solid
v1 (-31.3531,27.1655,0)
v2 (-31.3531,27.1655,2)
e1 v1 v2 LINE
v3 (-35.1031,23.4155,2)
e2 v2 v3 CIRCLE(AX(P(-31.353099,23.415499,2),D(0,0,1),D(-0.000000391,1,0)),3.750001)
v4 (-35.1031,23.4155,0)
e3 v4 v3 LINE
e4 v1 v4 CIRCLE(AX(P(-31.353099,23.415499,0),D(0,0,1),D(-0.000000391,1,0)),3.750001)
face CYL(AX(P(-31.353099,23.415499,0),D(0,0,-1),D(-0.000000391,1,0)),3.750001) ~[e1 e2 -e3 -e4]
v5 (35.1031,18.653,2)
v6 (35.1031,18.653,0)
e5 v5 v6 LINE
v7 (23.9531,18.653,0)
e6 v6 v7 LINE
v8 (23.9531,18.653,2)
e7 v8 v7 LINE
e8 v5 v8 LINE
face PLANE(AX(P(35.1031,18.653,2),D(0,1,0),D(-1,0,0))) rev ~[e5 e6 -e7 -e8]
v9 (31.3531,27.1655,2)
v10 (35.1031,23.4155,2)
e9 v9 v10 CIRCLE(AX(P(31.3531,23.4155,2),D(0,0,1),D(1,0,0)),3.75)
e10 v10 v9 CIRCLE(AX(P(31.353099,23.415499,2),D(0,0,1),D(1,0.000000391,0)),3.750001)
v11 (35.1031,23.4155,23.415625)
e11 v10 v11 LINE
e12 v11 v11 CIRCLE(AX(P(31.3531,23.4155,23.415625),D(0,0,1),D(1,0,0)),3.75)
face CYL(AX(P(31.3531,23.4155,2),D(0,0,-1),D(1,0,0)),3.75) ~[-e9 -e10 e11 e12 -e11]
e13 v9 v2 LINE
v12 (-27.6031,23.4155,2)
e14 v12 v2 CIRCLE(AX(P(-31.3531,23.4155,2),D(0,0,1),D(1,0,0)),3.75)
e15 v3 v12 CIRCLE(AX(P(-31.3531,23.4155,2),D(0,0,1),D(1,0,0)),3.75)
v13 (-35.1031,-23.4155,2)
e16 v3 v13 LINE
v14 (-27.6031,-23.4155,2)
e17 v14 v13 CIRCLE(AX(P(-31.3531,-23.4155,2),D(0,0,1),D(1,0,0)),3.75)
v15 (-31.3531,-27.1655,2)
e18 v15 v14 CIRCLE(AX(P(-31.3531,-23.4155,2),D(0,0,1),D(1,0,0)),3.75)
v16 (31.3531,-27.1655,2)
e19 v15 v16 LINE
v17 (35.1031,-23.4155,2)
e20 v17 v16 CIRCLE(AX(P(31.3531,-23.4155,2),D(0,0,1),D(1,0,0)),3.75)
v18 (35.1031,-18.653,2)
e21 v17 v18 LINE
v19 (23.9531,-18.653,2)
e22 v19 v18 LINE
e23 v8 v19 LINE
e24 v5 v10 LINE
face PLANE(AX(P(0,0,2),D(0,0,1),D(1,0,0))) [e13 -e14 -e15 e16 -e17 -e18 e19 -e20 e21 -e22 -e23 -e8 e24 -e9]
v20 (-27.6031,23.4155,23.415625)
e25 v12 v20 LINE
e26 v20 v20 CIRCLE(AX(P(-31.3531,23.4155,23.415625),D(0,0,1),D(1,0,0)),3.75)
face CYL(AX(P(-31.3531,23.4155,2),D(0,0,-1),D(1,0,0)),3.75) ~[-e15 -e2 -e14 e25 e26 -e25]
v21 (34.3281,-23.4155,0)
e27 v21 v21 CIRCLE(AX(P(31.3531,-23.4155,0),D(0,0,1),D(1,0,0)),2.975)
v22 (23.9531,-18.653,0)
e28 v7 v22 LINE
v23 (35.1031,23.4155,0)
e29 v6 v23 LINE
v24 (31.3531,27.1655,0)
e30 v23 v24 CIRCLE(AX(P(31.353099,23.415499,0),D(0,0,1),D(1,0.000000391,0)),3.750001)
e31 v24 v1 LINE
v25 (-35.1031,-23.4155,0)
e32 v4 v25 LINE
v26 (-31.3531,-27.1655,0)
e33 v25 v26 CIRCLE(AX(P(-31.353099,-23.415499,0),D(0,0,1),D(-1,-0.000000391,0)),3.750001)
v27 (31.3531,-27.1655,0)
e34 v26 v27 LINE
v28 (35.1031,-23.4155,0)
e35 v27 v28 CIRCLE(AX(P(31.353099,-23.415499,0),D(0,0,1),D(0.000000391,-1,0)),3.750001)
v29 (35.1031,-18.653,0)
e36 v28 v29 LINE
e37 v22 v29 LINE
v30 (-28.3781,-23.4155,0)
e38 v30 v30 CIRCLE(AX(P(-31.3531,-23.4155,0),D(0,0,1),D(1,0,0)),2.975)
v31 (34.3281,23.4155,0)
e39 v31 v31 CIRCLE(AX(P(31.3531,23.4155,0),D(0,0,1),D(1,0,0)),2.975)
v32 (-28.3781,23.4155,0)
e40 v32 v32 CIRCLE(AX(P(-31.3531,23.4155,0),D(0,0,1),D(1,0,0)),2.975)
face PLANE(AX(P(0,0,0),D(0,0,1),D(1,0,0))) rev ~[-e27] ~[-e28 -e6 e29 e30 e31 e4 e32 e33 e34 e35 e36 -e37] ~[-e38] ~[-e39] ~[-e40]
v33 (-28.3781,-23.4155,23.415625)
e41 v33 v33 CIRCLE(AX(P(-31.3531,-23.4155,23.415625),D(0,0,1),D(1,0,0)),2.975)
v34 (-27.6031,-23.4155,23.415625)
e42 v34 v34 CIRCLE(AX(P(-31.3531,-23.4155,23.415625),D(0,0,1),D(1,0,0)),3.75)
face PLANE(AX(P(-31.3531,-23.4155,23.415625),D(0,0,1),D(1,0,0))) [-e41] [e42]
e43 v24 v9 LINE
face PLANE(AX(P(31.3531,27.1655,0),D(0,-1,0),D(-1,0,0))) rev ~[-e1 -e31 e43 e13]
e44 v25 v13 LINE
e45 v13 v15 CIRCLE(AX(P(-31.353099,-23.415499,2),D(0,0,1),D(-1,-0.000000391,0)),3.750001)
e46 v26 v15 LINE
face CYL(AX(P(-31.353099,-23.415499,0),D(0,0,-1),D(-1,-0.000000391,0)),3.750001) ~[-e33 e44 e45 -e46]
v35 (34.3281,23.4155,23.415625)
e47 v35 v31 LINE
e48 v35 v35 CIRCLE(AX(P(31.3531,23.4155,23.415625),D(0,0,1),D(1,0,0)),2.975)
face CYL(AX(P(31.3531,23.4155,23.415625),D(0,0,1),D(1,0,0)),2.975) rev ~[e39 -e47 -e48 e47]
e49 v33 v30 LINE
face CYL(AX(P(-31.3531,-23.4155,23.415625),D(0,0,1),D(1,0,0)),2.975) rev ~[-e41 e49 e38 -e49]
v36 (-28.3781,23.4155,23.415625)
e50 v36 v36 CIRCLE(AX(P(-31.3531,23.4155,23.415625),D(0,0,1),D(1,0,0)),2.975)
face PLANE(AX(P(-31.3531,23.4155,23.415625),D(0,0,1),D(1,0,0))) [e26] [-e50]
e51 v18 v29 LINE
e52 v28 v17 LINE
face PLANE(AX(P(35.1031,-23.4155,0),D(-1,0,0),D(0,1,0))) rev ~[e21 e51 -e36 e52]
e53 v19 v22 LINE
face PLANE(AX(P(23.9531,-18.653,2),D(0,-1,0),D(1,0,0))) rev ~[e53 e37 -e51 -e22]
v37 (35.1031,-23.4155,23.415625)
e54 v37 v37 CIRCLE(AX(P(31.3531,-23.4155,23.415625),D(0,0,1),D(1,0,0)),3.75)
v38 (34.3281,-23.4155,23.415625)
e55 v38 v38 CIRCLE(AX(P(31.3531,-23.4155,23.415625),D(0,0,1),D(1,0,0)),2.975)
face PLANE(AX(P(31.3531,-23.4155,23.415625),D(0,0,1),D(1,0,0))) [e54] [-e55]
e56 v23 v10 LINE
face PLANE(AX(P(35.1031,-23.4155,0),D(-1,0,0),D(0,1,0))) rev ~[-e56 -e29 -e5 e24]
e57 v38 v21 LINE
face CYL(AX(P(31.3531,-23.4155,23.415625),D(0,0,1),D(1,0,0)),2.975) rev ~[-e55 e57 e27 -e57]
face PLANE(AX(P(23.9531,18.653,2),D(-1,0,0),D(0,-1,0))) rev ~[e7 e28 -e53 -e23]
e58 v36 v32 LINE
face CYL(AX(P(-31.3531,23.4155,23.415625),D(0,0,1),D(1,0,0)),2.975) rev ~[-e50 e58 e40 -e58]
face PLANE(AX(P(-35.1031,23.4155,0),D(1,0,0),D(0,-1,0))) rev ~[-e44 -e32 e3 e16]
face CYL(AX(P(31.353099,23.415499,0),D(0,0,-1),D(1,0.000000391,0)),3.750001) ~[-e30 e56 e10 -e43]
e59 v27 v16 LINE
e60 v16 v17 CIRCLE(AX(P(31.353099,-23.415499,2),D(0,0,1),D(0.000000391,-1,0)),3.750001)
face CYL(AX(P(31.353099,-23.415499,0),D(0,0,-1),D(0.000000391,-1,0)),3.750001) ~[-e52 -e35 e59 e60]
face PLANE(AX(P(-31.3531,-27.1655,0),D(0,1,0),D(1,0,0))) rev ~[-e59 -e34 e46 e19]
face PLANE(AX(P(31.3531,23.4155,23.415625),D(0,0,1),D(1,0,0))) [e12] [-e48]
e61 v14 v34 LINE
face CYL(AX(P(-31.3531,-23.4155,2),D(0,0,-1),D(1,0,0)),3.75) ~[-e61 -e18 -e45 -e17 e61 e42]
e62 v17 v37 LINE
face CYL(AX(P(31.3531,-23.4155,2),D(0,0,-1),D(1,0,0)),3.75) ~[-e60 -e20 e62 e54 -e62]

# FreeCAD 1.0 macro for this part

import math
import FreeCAD as App
import Part
import Sketcher

V = App.Vector
Q = App.Units.Quantity

doc = App.newDocument("Part")
body = doc.addObject("PartDesign::Body", "Body")

sketch1 = body.newObject("Sketcher::SketchObject", "Sketch")
sketch1.AttachmentSupport = (doc.getObject("XY_Plane"), [""])
sketch1.MapMode = "FlatFace"
sketch1.addGeometry([
    Part.LineSegment(V(-31.4, -27.2, 0), V(31.4, -27.2, 0)),
    Part.ArcOfCircle(Part.Circle(V(31.4, -23.4, 0), V(0, 0, 1), 3.8), math.radians(-90), math.radians(0)),
    Part.LineSegment(V(35.1, -23.4, 0), V(35.1, 23.4, 0)),
    Part.ArcOfCircle(Part.Circle(V(31.4, 23.4, 0), V(0, 0, 1), 3.8), math.radians(0), math.radians(90)),
    Part.LineSegment(V(31.4, 27.2, 0), V(-31.4, 27.2, 0)),
    Part.ArcOfCircle(Part.Circle(V(-31.4, 23.4, 0), V(0, 0, 1), 3.8), math.radians(90), math.radians(180)),
    Part.LineSegment(V(-35.1, 23.4, 0), V(-35.1, -23.4, 0)),
    Part.ArcOfCircle(Part.Circle(V(-31.4, -23.4, 0), V(0, 0, 1), 3.8), math.radians(-180), math.radians(-90)),
], False)
sketch1.addConstraint([
    Sketcher.Constraint("Tangent", 0, 2, 1, 1),
    Sketcher.Constraint("Tangent", 1, 2, 2, 1),
    Sketcher.Constraint("Tangent", 2, 2, 3, 1),
    Sketcher.Constraint("Tangent", 3, 2, 4, 1),
    Sketcher.Constraint("Tangent", 4, 2, 5, 1),
    Sketcher.Constraint("Tangent", 5, 2, 6, 1),
    Sketcher.Constraint("Tangent", 6, 2, 7, 1),
    Sketcher.Constraint("Tangent", 7, 2, 0, 1),
    Sketcher.Constraint("Horizontal", 0),
    Sketcher.Constraint("Vertical", 2),
    Sketcher.Constraint("Horizontal", 4),
    Sketcher.Constraint("Vertical", 6),
    Sketcher.Constraint("Equal", 1, 3),
    Sketcher.Constraint("Equal", 3, 5),
    Sketcher.Constraint("Equal", 5, 7),
    Sketcher.Constraint("Symmetric", 1, 3, 5, 3, -1, 1),
    Sketcher.Constraint("Radius", 1, Q("3.750001 mm")),
    Sketcher.Constraint("DistanceY", 2, 1, 2, 2, Q("46.831 mm")),
    Sketcher.Constraint("DistanceX", 0, 1, 0, 2, Q("62.7062 mm")),
])
pad1 = body.newObject("PartDesign::Pad", "Pad")
pad1.Profile = sketch1
pad1.Length = 2

sketch2 = body.newObject("Sketcher::SketchObject", "Sketch001")
sketch2.AttachmentSupport = (doc.getObject("XY_Plane"), [""])
sketch2.MapMode = "FlatFace"
sketch2.AttachmentOffset = App.Placement(V(0, 0, 2), App.Rotation())
sketch2.addGeometry([
    Part.Circle(V(-31.4, 23.4, 0), V(0, 0, 1), 3.8),
    Part.Circle(V(31.4, 23.4, 0), V(0, 0, 1), 3.8),
    Part.Circle(V(-31.4, -23.4, 0), V(0, 0, 1), 3.8),
    Part.Circle(V(31.4, -23.4, 0), V(0, 0, 1), 3.8),
], False)
sketch2.addConstraint([
    Sketcher.Constraint("Equal", 0, 1),
    Sketcher.Constraint("Equal", 1, 2),
    Sketcher.Constraint("Equal", 2, 3),
    Sketcher.Constraint("Symmetric", 1, 3, 2, 3, -1, 1),
    Sketcher.Constraint("Symmetric", 0, 3, 3, 3, -1, 1),
    Sketcher.Constraint("Symmetric", 0, 3, 1, 3, -2),
    Sketcher.Constraint("Diameter", 0, Q("7.5 mm")),
    Sketcher.Constraint("DistanceY", 2, 3, 0, 3, Q("46.831 mm")),
    Sketcher.Constraint("DistanceX", 0, 3, -1, 1, Q("31.3531 mm")),
])
pad2 = body.newObject("PartDesign::Pad", "Pad001")
pad2.Profile = sketch2
pad2.Length = 21.415625

sketch3 = body.newObject("Sketcher::SketchObject", "Sketch002")
sketch3.AttachmentSupport = (doc.getObject("XY_Plane"), [""])
sketch3.MapMode = "FlatFace"
sketch3.AttachmentOffset = App.Placement(V(0, 0, 23.415625), App.Rotation())
sketch3.addGeometry([
    Part.Circle(V(-31.4, 23.4, 0), V(0, 0, 1), 3),
    Part.Circle(V(31.4, 23.4, 0), V(0, 0, 1), 3),
    Part.Circle(V(31.4, -23.4, 0), V(0, 0, 1), 3),
    Part.Circle(V(-31.4, -23.4, 0), V(0, 0, 1), 3),
], False)
sketch3.addConstraint([
    Sketcher.Constraint("Equal", 0, 1),
    Sketcher.Constraint("Equal", 1, 2),
    Sketcher.Constraint("Equal", 2, 3),
    Sketcher.Constraint("Symmetric", 0, 3, 2, 3, -1, 1),
    Sketcher.Constraint("Symmetric", 1, 3, 3, 3, -1, 1),
    Sketcher.Constraint("Symmetric", 0, 3, 1, 3, -2),
    Sketcher.Constraint("Diameter", 0, Q("5.95 mm")),
    Sketcher.Constraint("DistanceY", 2, 3, 1, 3, Q("46.831 mm")),
    Sketcher.Constraint("DistanceX", 0, 3, -1, 1, Q("31.3531 mm")),
])
pocket1 = body.newObject("PartDesign::Pocket", "Pocket")
pocket1.Profile = sketch3
pocket1.Type = "ThroughAll"

sketch4 = body.newObject("Sketcher::SketchObject", "Sketch003")
sketch4.AttachmentSupport = (doc.getObject("XY_Plane"), [""])
sketch4.MapMode = "FlatFace"
sketch4.AttachmentOffset = App.Placement(V(0, 0, 2), App.Rotation())
sketch4.addGeometry([
    Part.LineSegment(V(24, 19, 0), V(24, -19, 0)),
    Part.LineSegment(V(24, -19, 0), V(35, -19, 0)),
    Part.LineSegment(V(35, -19, 0), V(35, 19, 0)),
    Part.LineSegment(V(35, 19, 0), V(24, 19, 0)),
], False)
sketch4.addConstraint([
    Sketcher.Constraint("Coincident", 0, 2, 1, 1),
    Sketcher.Constraint("Coincident", 1, 2, 2, 1),
    Sketcher.Constraint("Coincident", 2, 2, 3, 1),
    Sketcher.Constraint("Coincident", 3, 2, 0, 1),
    Sketcher.Constraint("Vertical", 0),
    Sketcher.Constraint("Horizontal", 1),
    Sketcher.Constraint("Vertical", 2),
    Sketcher.Constraint("Horizontal", 3),
    Sketcher.Constraint("DistanceX", 1, 1, 1, 2, Q("11.15 mm")),
    Sketcher.Constraint("DistanceY", 0, 2, 0, 1, Q("37.306 mm")),
    Sketcher.Constraint("DistanceY", 0, 2, -1, 1, Q("18.653 mm")),
    Sketcher.Constraint("DistanceX", -1, 1, 0, 2, Q("23.9531 mm")),
])
pocket2 = body.newObject("PartDesign::Pocket", "Pocket001")
pocket2.Profile = sketch4
pocket2.Type = "ThroughAll"

doc.recompute()
